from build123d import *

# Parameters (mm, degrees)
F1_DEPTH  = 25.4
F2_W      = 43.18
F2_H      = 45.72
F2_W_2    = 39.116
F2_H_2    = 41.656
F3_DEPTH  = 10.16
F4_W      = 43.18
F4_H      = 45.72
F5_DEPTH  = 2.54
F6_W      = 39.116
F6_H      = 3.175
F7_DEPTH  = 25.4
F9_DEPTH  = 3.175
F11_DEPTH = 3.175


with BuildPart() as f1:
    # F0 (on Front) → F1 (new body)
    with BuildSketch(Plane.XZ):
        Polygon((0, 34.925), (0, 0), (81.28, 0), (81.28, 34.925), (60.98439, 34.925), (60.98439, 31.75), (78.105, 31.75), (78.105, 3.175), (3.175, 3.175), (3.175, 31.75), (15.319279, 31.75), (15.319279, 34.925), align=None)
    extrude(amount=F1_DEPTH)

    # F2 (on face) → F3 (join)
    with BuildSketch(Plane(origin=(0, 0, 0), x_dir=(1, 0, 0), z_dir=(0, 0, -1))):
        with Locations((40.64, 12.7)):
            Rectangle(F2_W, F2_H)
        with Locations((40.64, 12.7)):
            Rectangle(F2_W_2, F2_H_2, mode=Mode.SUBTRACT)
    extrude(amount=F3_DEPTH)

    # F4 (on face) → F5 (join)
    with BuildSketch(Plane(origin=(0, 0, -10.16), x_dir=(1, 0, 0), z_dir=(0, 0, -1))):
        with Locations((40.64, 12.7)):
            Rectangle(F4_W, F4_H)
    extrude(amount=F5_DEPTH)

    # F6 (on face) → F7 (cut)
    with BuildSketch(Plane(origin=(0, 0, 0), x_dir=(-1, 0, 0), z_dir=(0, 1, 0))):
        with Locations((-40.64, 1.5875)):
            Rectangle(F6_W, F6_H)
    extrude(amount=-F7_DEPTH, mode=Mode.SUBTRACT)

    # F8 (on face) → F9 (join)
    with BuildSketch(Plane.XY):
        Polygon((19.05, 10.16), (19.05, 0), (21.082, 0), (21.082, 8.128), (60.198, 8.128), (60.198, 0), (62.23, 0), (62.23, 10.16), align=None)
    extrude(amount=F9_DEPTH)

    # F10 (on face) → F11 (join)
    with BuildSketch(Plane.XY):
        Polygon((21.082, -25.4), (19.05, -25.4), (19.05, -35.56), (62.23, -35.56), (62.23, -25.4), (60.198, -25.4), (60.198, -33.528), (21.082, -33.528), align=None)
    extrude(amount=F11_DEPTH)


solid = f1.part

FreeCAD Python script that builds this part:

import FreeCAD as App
import Part
import Sketcher

V = App.Vector
Q = App.Units.Quantity

doc = App.newDocument("Part")
body = doc.addObject("PartDesign::Body", "Body")

sketch1 = body.newObject("Sketcher::SketchObject", "Sketch")
sketch1.AttachmentSupport = (doc.getObject("XZ_Plane"), [""])
sketch1.MapMode = "FlatFace"
sketch1.addGeometry([
    Part.LineSegment(V(0, 34.9, 0), V(0, 0, 0)),
    Part.LineSegment(V(0, 0, 0), V(81.3, 0, 0)),
    Part.LineSegment(V(81.3, 0, 0), V(81.3, 34.9, 0)),
    Part.LineSegment(V(81.3, 34.9, 0), V(61, 34.9, 0)),
    Part.LineSegment(V(61, 34.9, 0), V(61, 31.8, 0)),
    Part.LineSegment(V(61, 31.8, 0), V(78.1, 31.8, 0)),
    Part.LineSegment(V(78.1, 31.8, 0), V(78.1, 3.2, 0)),
    Part.LineSegment(V(78.1, 3.2, 0), V(3.2, 3.2, 0)),
    Part.LineSegment(V(3.2, 3.2, 0), V(3.2, 31.8, 0)),
    Part.LineSegment(V(3.2, 31.8, 0), V(15.3, 31.8, 0)),
    Part.LineSegment(V(15.3, 31.8, 0), V(15.3, 34.9, 0)),
    Part.LineSegment(V(15.3, 34.9, 0), V(0, 34.9, 0)),
], False)
sketch1.addConstraint([
    Sketcher.Constraint("Coincident", 0, 2, 1, 1),
    Sketcher.Constraint("Coincident", 1, 2, 2, 1),
    Sketcher.Constraint("Coincident", 2, 2, 3, 1),
    Sketcher.Constraint("Coincident", 3, 2, 4, 1),
    Sketcher.Constraint("Coincident", 4, 2, 5, 1),
    Sketcher.Constraint("Coincident", 5, 2, 6, 1),
    Sketcher.Constraint("Coincident", 6, 2, 7, 1),
    Sketcher.Constraint("Coincident", 7, 2, 8, 1),
    Sketcher.Constraint("Coincident", 8, 2, 9, 1),
    Sketcher.Constraint("Coincident", 9, 2, 10, 1),
    Sketcher.Constraint("Coincident", 10, 2, 11, 1),
    Sketcher.Constraint("Coincident", 11, 2, 0, 1),
    Sketcher.Constraint("Vertical", 0),
    Sketcher.Constraint("Horizontal", 1),
    Sketcher.Constraint("Vertical", 2),
    Sketcher.Constraint("Horizontal", 3),
    Sketcher.Constraint("Vertical", 4),
    Sketcher.Constraint("Horizontal", 5),
    Sketcher.Constraint("Vertical", 6),
    Sketcher.Constraint("Horizontal", 7),
    Sketcher.Constraint("Vertical", 8),
    Sketcher.Constraint("Horizontal", 9),
    Sketcher.Constraint("Vertical", 10),
    Sketcher.Constraint("Horizontal", 11),
    Sketcher.Constraint("Coincident", 0, 2, -1, 1),
    Sketcher.Constraint("Horizontal", 5, 2, 8, 2),
    Sketcher.Constraint("Horizontal", 3, 2, 10, 2),
    Sketcher.Constraint("DistanceX", 1, 1, 1, 2, Q("3.2 in")),
    Sketcher.Constraint("DistanceX", 7, 2, 7, 1, Q("2.95 in")),
    Sketcher.Constraint("DistanceY", 0, 2, 0, 1, Q("1.375 in")),
    Sketcher.Constraint("DistanceY", 4, 2, 4, 1, Q("0.125 in")),
    Sketcher.Constraint("DistanceY", 6, 2, 6, 1, Q("1.125 in")),
    Sketcher.Constraint("DistanceX", -1, 1, 5, 2, Q("3.075 in")),
    Sketcher.Constraint("DistanceX", 3, 2, 3, 1, Q("20.29561 mm")),
    Sketcher.Constraint("DistanceX", 9, 1, 9, 2, Q("12.144279 mm")),
])
pad1 = body.newObject("PartDesign::Pad", "Pad")
pad1.Profile = sketch1
pad1.Length = Q("1 in")

sketch2 = body.newObject("Sketcher::SketchObject", "Sketch001")
sketch2.AttachmentSupport = (doc.getObject("XY_Plane"), [""])
sketch2.MapMode = "FlatFace"
sketch2.addGeometry([
    Part.LineSegment(V(19, -36, 0), V(19, 10, 0)),
    Part.LineSegment(V(19, 10, 0), V(62, 10, 0)),
    Part.LineSegment(V(62, 10, 0), V(62, -36, 0)),
    Part.LineSegment(V(62, -36, 0), V(19, -36, 0)),
    Part.LineSegment(V(60, 8, 0), V(21, 8, 0)),
    Part.LineSegment(V(21, 8, 0), V(21, -34, 0)),
    Part.LineSegment(V(21, -34, 0), V(60, -34, 0)),
    Part.LineSegment(V(60, -34, 0), V(60, 8, 0)),
], False)
sketch2.addConstraint([
    Sketcher.Constraint("Coincident", 0, 2, 1, 1),
    Sketcher.Constraint("Coincident", 1, 2, 2, 1),
    Sketcher.Constraint("Coincident", 2, 2, 3, 1),
    Sketcher.Constraint("Coincident", 3, 2, 0, 1),
    Sketcher.Constraint("Coincident", 4, 2, 5, 1),
    Sketcher.Constraint("Coincident", 5, 2, 6, 1),
    Sketcher.Constraint("Coincident", 6, 2, 7, 1),
    Sketcher.Constraint("Coincident", 7, 2, 4, 1),
    Sketcher.Constraint("Vertical", 0),
    Sketcher.Constraint("Horizontal", 1),
    Sketcher.Constraint("Vertical", 2),
    Sketcher.Constraint("Horizontal", 3),
    Sketcher.Constraint("Horizontal", 4),
    Sketcher.Constraint("Vertical", 5),
    Sketcher.Constraint("Horizontal", 6),
    Sketcher.Constraint("Vertical", 7),
    Sketcher.Constraint("DistanceX", 1, 1, 1, 2, Q("1.7 in")),
    Sketcher.Constraint("DistanceY", 0, 1, 0, 2, Q("1.8 in")),
    Sketcher.Constraint("DistanceX", 4, 2, 4, 1, Q("1.54 in")),
    Sketcher.Constraint("DistanceY", 5, 2, 5, 1, Q("1.64 in")),
    Sketcher.Constraint("DistanceY", -1, 1, 0, 2, Q("0.4 in")),
    Sketcher.Constraint("DistanceX", -1, 1, 0, 2, Q("0.75 in")),
    Sketcher.Constraint("DistanceX", -1, 1, 4, 2, Q("0.83 in")),
    Sketcher.Constraint("DistanceY", -1, 1, 4, 2, Q("0.32 in")),
])
pad2 = body.newObject("PartDesign::Pad", "Pad001")
pad2.Profile = sketch2
pad2.Length = Q("0.4 in")
pad2.Reversed = True

sketch3 = body.newObject("Sketcher::SketchObject", "Sketch002")
sketch3.AttachmentSupport = (doc.getObject("XY_Plane"), [""])
sketch3.MapMode = "FlatFace"
sketch3.AttachmentOffset = App.Placement(V(0, 0, -0.4 * 25.4), App.Rotation())
sketch3.addGeometry([
    Part.LineSegment(V(19, -36, 0), V(19, 10, 0)),
    Part.LineSegment(V(19, 10, 0), V(62, 10, 0)),
    Part.LineSegment(V(62, 10, 0), V(62, -36, 0)),
    Part.LineSegment(V(62, -36, 0), V(19, -36, 0)),
], False)
sketch3.addConstraint([
    Sketcher.Constraint("Coincident", 0, 2, 1, 1),
    Sketcher.Constraint("Coincident", 1, 2, 2, 1),
    Sketcher.Constraint("Coincident", 2, 2, 3, 1),
    Sketcher.Constraint("Coincident", 3, 2, 0, 1),
    Sketcher.Constraint("Vertical", 0),
    Sketcher.Constraint("Horizontal", 1),
    Sketcher.Constraint("Vertical", 2),
    Sketcher.Constraint("Horizontal", 3),
    Sketcher.Constraint("DistanceX", 1, 1, 1, 2, Q("1.7 in")),
    Sketcher.Constraint("DistanceY", 0, 1, 0, 2, Q("1.8 in")),
    Sketcher.Constraint("DistanceY", -1, 1, 0, 2, Q("0.4 in")),
    Sketcher.Constraint("DistanceX", -1, 1, 0, 2, Q("0.75 in")),
])
pad3 = body.newObject("PartDesign::Pad", "Pad002")
pad3.Profile = sketch3
pad3.Length = Q("0.1 in")
pad3.Reversed = True

sketch4 = body.newObject("Sketcher::SketchObject", "Sketch003")
sketch4.AttachmentSupport = (doc.getObject("XZ_Plane"), [""])
sketch4.MapMode = "FlatFace"
sketch4.addGeometry([
    Part.LineSegment(V(60.2, 3.2, 0), V(60.2, 0, 0)),
    Part.LineSegment(V(60.2, 0, 0), V(21.1, 0, 0)),
    Part.LineSegment(V(21.1, 0, 0), V(21.1, 3.2, 0)),
    Part.LineSegment(V(21.1, 3.2, 0), V(60.2, 3.2, 0)),
], False)
sketch4.addConstraint([
    Sketcher.Constraint("Coincident", 0, 2, 1, 1),
    Sketcher.Constraint("Coincident", 1, 2, 2, 1),
    Sketcher.Constraint("Coincident", 2, 2, 3, 1),
    Sketcher.Constraint("Coincident", 3, 2, 0, 1),
    Sketcher.Constraint("Vertical", 0),
    Sketcher.Constraint("Horizontal", 1),
    Sketcher.Constraint("Vertical", 2),
    Sketcher.Constraint("Horizontal", 3),
    Sketcher.Constraint("PointOnObject", 0, 2, -1),
    Sketcher.Constraint("DistanceX", 1, 2, 1, 1, Q("1.54 in")),
    Sketcher.Constraint("DistanceY", 0, 2, 0, 1, Q("0.125 in")),
    Sketcher.Constraint("DistanceX", -1, 1, 0, 2, Q("2.37 in")),
])
pocket1 = body.newObject("PartDesign::Pocket", "Pocket")
pocket1.Profile = sketch4
pocket1.Length = Q("1 in")
pocket1.Reversed = True

sketch5 = body.newObject("Sketcher::SketchObject", "Sketch004")
sketch5.AttachmentSupport = (doc.getObject("XY_Plane"), [""])
sketch5.MapMode = "FlatFace"
sketch5.addGeometry([
    Part.LineSegment(V(19.1, 10.2, 0), V(19.1, 0, 0)),
    Part.LineSegment(V(19.1, 0, 0), V(21.1, 0, 0)),
    Part.LineSegment(V(21.1, 0, 0), V(21.1, 8.1, 0)),
    Part.LineSegment(V(21.1, 8.1, 0), V(60.2, 8.1, 0)),
    Part.LineSegment(V(60.2, 8.1, 0), V(60.2, 0, 0)),
    Part.LineSegment(V(60.2, 0, 0), V(62.2, 0, 0)),
    Part.LineSegment(V(62.2, 0, 0), V(62.2, 10.2, 0)),
    Part.LineSegment(V(62.2, 10.2, 0), V(19.1, 10.2, 0)),
], False)
sketch5.addConstraint([
    Sketcher.Constraint("Coincident", 0, 2, 1, 1),
    Sketcher.Constraint("Coincident", 1, 2, 2, 1),
    Sketcher.Constraint("Coincident", 2, 2, 3, 1),
    Sketcher.Constraint("Coincident", 3, 2, 4, 1),
    Sketcher.Constraint("Coincident", 4, 2, 5, 1),
    Sketcher.Constraint("Coincident", 5, 2, 6, 1),
    Sketcher.Constraint("Coincident", 6, 2, 7, 1),
    Sketcher.Constraint("Coincident", 7, 2, 0, 1),
    Sketcher.Constraint("Vertical", 0),
    Sketcher.Constraint("Horizontal", 1),
    Sketcher.Constraint("Vertical", 2),
    Sketcher.Constraint("Horizontal", 3),
    Sketcher.Constraint("Vertical", 4),
    Sketcher.Constraint("Horizontal", 5),
    Sketcher.Constraint("Vertical", 6),
    Sketcher.Constraint("Horizontal", 7),
    Sketcher.Constraint("PointOnObject", 0, 2, -1),
    Sketcher.Constraint("PointOnObject", 4, 2, -1),
    Sketcher.Constraint("Equal", 1, 5),
    Sketcher.Constraint("DistanceX", 7, 2, 7, 1, Q("1.7 in")),
    Sketcher.Constraint("DistanceY", 0, 2, 0, 1, Q("0.4 in")),
    Sketcher.Constraint("DistanceX", 1, 1, 1, 2, Q("0.08 in")),
    Sketcher.Constraint("DistanceY", 2, 1, 2, 2, Q("0.32 in")),
    Sketcher.Constraint("DistanceX", -1, 1, 0, 2, Q("0.75 in")),
])
pad4 = body.newObject("PartDesign::Pad", "Pad003")
pad4.Profile = sketch5
pad4.Length = Q("0.125 in")

sketch6 = body.newObject("Sketcher::SketchObject", "Sketch005")
sketch6.AttachmentSupport = (doc.getObject("XY_Plane"), [""])
sketch6.MapMode = "FlatFace"
sketch6.addGeometry([
    Part.LineSegment(V(21.1, -25.4, 0), V(19.1, -25.4, 0)),
    Part.LineSegment(V(19.1, -25.4, 0), V(19.1, -35.6, 0)),
    Part.LineSegment(V(19.1, -35.6, 0), V(62.2, -35.6, 0)),
    Part.LineSegment(V(62.2, -35.6, 0), V(62.2, -25.4, 0)),
    Part.LineSegment(V(62.2, -25.4, 0), V(60.2, -25.4, 0)),
    Part.LineSegment(V(60.2, -25.4, 0), V(60.2, -33.5, 0)),
    Part.LineSegment(V(60.2, -33.5, 0), V(21.1, -33.5, 0)),
    Part.LineSegment(V(21.1, -33.5, 0), V(21.1, -25.4, 0)),
], False)
sketch6.addConstraint([
    Sketcher.Constraint("Coincident", 0, 2, 1, 1),
    Sketcher.Constraint("Coincident", 1, 2, 2, 1),
    Sketcher.Constraint("Coincident", 2, 2, 3, 1),
    Sketcher.Constraint("Coincident", 3, 2, 4, 1),
    Sketcher.Constraint("Coincident", 4, 2, 5, 1),
    Sketcher.Constraint("Coincident", 5, 2, 6, 1),
    Sketcher.Constraint("Coincident", 6, 2, 7, 1),
    Sketcher.Constraint("Coincident", 7, 2, 0, 1),
    Sketcher.Constraint("Horizontal", 0),
    Sketcher.Constraint("Vertical", 1),
    Sketcher.Constraint("Horizontal", 2),
    Sketcher.Constraint("Vertical", 3),
    Sketcher.Constraint("Horizontal", 4),
    Sketcher.Constraint("Vertical", 5),
    Sketcher.Constraint("Horizontal", 6),
    Sketcher.Constraint("Vertical", 7),
    Sketcher.Constraint("Horizontal", 0, 2, 3, 2),
    Sketcher.Constraint("Equal", 0, 4),
    Sketcher.Constraint("DistanceX", 2, 1, 2, 2, Q("1.7 in")),
    Sketcher.Constraint("DistanceY", 1, 2, 1, 1, Q("0.4 in")),
    Sketcher.Constraint("DistanceY", 0, 2, -1, 1, Q("1 in")),
    Sketcher.Constraint("DistanceX", 0, 2, 0, 1, Q("0.08 in")),
    Sketcher.Constraint("DistanceY", 5, 2, 5, 1, Q("0.32 in")),
    Sketcher.Constraint("DistanceX", -1, 1, 0, 2, Q("0.75 in")),
])
pad5 = body.newObject("PartDesign::Pad", "Pad004")
pad5.Profile = sketch6
pad5.Length = Q("0.125 in")

doc.recompute()
